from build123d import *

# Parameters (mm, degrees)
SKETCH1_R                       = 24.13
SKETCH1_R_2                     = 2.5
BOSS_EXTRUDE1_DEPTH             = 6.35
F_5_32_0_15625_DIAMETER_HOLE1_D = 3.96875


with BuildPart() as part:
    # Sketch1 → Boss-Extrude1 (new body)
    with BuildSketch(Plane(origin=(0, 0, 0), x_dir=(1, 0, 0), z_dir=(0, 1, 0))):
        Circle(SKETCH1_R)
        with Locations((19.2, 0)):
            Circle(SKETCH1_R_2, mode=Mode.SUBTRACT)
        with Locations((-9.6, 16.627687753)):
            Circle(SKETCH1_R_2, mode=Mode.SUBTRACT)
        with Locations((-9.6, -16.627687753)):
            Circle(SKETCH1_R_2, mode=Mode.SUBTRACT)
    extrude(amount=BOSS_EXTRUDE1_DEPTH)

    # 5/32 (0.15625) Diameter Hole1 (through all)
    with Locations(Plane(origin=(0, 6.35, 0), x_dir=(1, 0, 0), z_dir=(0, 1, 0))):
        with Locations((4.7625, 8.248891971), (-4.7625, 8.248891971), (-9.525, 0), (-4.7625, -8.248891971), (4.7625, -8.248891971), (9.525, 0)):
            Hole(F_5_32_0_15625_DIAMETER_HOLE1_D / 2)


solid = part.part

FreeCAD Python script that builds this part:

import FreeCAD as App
import Part
import Sketcher

V = App.Vector
Q = App.Units.Quantity

doc = App.newDocument("Part")
body = doc.addObject("PartDesign::Body", "Body")

# Sketch on XZ plane
sketch1 = doc.addObject("Sketcher::SketchObject", "Sketch")
body.addObject(sketch1)
sketch1.AttachmentSupport = (doc.XZ_Plane, [""])
sketch1.MapMode = "FlatFace"
sketch1.addGeometry(Part.Circle(V(0, 0, 0), V(0, 0, 1), 24.13), False)
sketch1.addGeometry(Part.Circle(V(-9.6, 16.627688, 0), V(0, 0, 1), 2.5), False)
sketch1.addGeometry(Part.Circle(V(-9.6, -16.627688, 0), V(0, 0, 1), 2.5), False)
sketch1.addGeometry(Part.Circle(V(19.2, 0, 0), V(0, 0, 1), 2.5), False)
sketch1.addConstraint(Sketcher.Constraint("Coincident", 0, 3, -1, 1))
sketch1.addConstraint(Sketcher.Constraint("Equal", 1, 2))
sketch1.addConstraint(Sketcher.Constraint("Equal", 2, 3))
sketch1.addConstraint(Sketcher.Constraint("Symmetric", 1, 3, 2, 3, -1))
sketch1.addConstraint(Sketcher.Constraint("PointOnObject", 3, 3, -1))
sketch1.addConstraint(Sketcher.Constraint("Diameter", 0, Q("1.9 in")))
sketch1.addConstraint(Sketcher.Constraint("Diameter", 1, 5.0))
sketch1.addConstraint(Sketcher.Constraint("DistanceX", 1, 3, -1, 1, 9.6))
sketch1.addConstraint(Sketcher.Constraint("DistanceX", -1, 1, 3, 3, 19.2))
sketch1.addConstraint(Sketcher.Constraint("DistanceY", -1, 1, 1, 3, 16.627688))
pad1 = doc.addObject("PartDesign::Pad", "Pad")
body.addObject(pad1)
pad1.Profile = sketch1
pad1.Length = Q("0.25 in")
pad1.Reversed = True

# Sketch on XZ plane
sketch2 = doc.addObject("Sketcher::SketchObject", "Sketch001")
body.addObject(sketch2)
sketch2.AttachmentSupport = (doc.XZ_Plane, [""])
sketch2.MapMode = "FlatFace"
sketch2.AttachmentOffset = App.Placement(V(0, 0, -0.25 * 25.4), App.Rotation())
sketch2.addGeometry(Part.Circle(V(4.7625, -8.248892, 0), V(0, 0, 1), 1.984375), False)
sketch2.addGeometry(Part.Circle(V(-4.7625, -8.248892, 0), V(0, 0, 1), 1.984375), False)
sketch2.addGeometry(Part.Circle(V(-9.525, 0, 0), V(0, 0, 1), 1.984375), False)
sketch2.addGeometry(Part.Circle(V(-4.7625, 8.248892, 0), V(0, 0, 1), 1.984375), False)
sketch2.addGeometry(Part.Circle(V(4.7625, 8.248892, 0), V(0, 0, 1), 1.984375), False)
sketch2.addGeometry(Part.Circle(V(9.525, 0, 0), V(0, 0, 1), 1.984375), False)
sketch2.addConstraint(Sketcher.Constraint("Equal", 0, 1))
sketch2.addConstraint(Sketcher.Constraint("Equal", 1, 2))
sketch2.addConstraint(Sketcher.Constraint("Equal", 2, 3))
sketch2.addConstraint(Sketcher.Constraint("Equal", 3, 4))
sketch2.addConstraint(Sketcher.Constraint("Equal", 4, 5))
sketch2.addConstraint(Sketcher.Constraint("Symmetric", 0, 3, 3, 3, -1, 1))
sketch2.addConstraint(Sketcher.Constraint("Symmetric", 1, 3, 4, 3, -1, 1))
sketch2.addConstraint(Sketcher.Constraint("Symmetric", 2, 3, 5, 3, -1, 1))
sketch2.addConstraint(Sketcher.Constraint("Symmetric", 0, 3, 1, 3, -2))
sketch2.addConstraint(Sketcher.Constraint("PointOnObject", 2, 3, -1))
sketch2.addConstraint(Sketcher.Constraint("Diameter", 0, Q("0.15625 in")))
sketch2.addConstraint(Sketcher.Constraint("DistanceX", 2, 3, 5, 3, Q("0.75 in")))
sketch2.addConstraint(Sketcher.Constraint("DistanceX", -1, 1, 0, 3, Q("0.1875 in")))
sketch2.addConstraint(Sketcher.Constraint("DistanceY", 0, 3, -1, 1, 8.248892))
doc.recompute()
hole = doc.addObject("PartDesign::Hole", "Hole")
body.addObject(hole)
hole.Profile = sketch2
hole.ThreadType = "None"
hole.Diameter = Q("0.15625 in")
hole.DepthType = "ThroughAll"
hole.Reversed = True

doc.recompute()
